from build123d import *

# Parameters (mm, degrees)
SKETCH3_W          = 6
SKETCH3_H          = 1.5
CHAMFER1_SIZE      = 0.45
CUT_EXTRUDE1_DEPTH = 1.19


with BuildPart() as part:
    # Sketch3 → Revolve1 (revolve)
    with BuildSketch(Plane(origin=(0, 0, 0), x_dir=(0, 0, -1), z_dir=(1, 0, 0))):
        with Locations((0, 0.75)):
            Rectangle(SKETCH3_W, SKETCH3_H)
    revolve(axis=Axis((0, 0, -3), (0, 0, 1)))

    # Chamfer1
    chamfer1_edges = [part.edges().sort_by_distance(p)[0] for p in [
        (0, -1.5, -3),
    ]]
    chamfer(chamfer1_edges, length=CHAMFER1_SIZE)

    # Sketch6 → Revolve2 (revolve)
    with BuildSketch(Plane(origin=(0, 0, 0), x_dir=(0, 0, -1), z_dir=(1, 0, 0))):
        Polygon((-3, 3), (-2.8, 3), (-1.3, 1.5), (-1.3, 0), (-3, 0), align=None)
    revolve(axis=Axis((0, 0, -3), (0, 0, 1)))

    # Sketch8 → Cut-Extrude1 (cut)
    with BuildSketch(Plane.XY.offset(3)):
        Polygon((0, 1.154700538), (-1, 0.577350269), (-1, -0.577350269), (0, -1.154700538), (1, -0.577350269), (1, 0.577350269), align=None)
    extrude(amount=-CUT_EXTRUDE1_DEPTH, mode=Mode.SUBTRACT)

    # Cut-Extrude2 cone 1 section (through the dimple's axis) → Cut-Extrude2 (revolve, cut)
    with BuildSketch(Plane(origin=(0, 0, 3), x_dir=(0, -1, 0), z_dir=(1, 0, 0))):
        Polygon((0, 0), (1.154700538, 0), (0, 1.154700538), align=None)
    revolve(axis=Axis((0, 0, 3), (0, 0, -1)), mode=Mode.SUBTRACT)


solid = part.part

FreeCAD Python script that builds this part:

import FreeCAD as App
import Part
import Sketcher
Q = App.Units.Quantity


def edges_at(feature, points):
    """Names of the edges that pass closest to the given points."""
    edges = feature.Shape.Edges
    near = lambda p: min(range(len(edges)), key=lambda i: edges[i].distToShape(Part.Vertex(*p))[0])
    return sorted({f"Edge{near(p) + 1}" for p in points})

doc = App.newDocument("Part")
body = doc.addObject("PartDesign::Body", "Body")

# Sketch on YZ plane
sketch1 = doc.addObject("Sketcher::SketchObject", "Sketch")
body.addObject(sketch1)
sketch1.AttachmentSupport = (doc.YZ_Plane, [""])
sketch1.MapMode = "FlatFace"
sketch1.addGeometry([
    Part.LineSegment(App.Vector(1.5, 3, 0), App.Vector(0, 3, 0)),
    Part.LineSegment(App.Vector(0, 3, 0), App.Vector(0, -3, 0)),
    Part.LineSegment(App.Vector(0, -3, 0), App.Vector(1.5, -3, 0)),
    Part.LineSegment(App.Vector(1.5, -3, 0), App.Vector(1.5, 3, 0)),
], False)
sketch1.addConstraint([
    Sketcher.Constraint("Coincident", 0, 2, 1, 1),
    Sketcher.Constraint("Coincident", 1, 2, 2, 1),
    Sketcher.Constraint("Coincident", 2, 2, 3, 1),
    Sketcher.Constraint("Coincident", 3, 2, 0, 1),
    Sketcher.Constraint("Horizontal", 0),
    Sketcher.Constraint("Vertical", 1),
    Sketcher.Constraint("Horizontal", 2),
    Sketcher.Constraint("Vertical", 3),
    Sketcher.Constraint("Symmetric", 0, 2, 1, 2, -1, 1),
    Sketcher.Constraint("DistanceY", 1, 2, 1, 1, 6.0),
    Sketcher.Constraint("DistanceX", 0, 2, 0, 1, 1.5),
])
revolution = doc.addObject("PartDesign::Revolution", "Revolution")
body.addObject(revolution)
revolution.Profile = sketch1
revolution.ReferenceAxis = (sketch1, ["V_Axis"])
revolution.Angle = 360
doc.recompute()

chamfer = doc.addObject("PartDesign::Chamfer", "Chamfer")
body.addObject(chamfer)
chamfer.Base = (revolution, edges_at(revolution, [(0, -1.5, -3)]))
chamfer.Size = 0.45

# Sketch on YZ plane
sketch2 = doc.addObject("Sketcher::SketchObject", "Sketch001")
body.addObject(sketch2)
sketch2.AttachmentSupport = (doc.YZ_Plane, [""])
sketch2.MapMode = "FlatFace"
sketch2.addGeometry([
    Part.LineSegment(App.Vector(3, 2.8, 0), App.Vector(3, 3, 0)),  # 0
    Part.LineSegment(App.Vector(3, 3, 0), App.Vector(0, 3, 0)),  # 1
    Part.LineSegment(App.Vector(0, 3, 0), App.Vector(0, 1.3, 0)),  # 2
    Part.LineSegment(App.Vector(0, 1.3, 0), App.Vector(1.5, 1.3, 0)),  # 3
    Part.LineSegment(App.Vector(1.5, 1.3, 0), App.Vector(3, 2.8, 0)),  # 4
], False)
sketch2.addConstraint([
    Sketcher.Constraint("Coincident", 0, 2, 1, 1),
    Sketcher.Constraint("Coincident", 1, 2, 2, 1),
    Sketcher.Constraint("Coincident", 2, 2, 3, 1),
    Sketcher.Constraint("Coincident", 3, 2, 4, 1),
    Sketcher.Constraint("Coincident", 4, 2, 0, 1),
    Sketcher.Constraint("Vertical", 0),
    Sketcher.Constraint("Horizontal", 1),
    Sketcher.Constraint("Vertical", 2),
    Sketcher.Constraint("Horizontal", 3),
    Sketcher.Constraint("PointOnObject", 1, 2, -2),
    Sketcher.Constraint("DistanceX", 1, 2, 1, 1, 3.0),
    Sketcher.Constraint("Angle", 4, Q("45 deg")),
    Sketcher.Constraint("DistanceX", 3, 1, 3, 2, 1.5),
    Sketcher.Constraint("DistanceY", 0, 1, 0, 2, 0.2),
    Sketcher.Constraint("DistanceY", -1, 1, 0, 2, 3.0),
])
revolution2 = doc.addObject("PartDesign::Revolution", "Revolution001")
body.addObject(revolution2)
revolution2.Profile = sketch2
revolution2.ReferenceAxis = (sketch2, ["V_Axis"])
revolution2.Angle = 360

# Sketch on XY plane
sketch3 = doc.addObject("Sketcher::SketchObject", "Sketch002")
body.addObject(sketch3)
sketch3.AttachmentSupport = (doc.XY_Plane, [""])
sketch3.MapMode = "FlatFace"
sketch3.AttachmentOffset = App.Placement(App.Vector(0, 0, 3), App.Rotation())
sketch3.addGeometry([
    Part.LineSegment(App.Vector(0, 1.2, 0), App.Vector(-1, 0.6, 0)),  # 0
    Part.LineSegment(App.Vector(-1, 0.6, 0), App.Vector(-1, -0.6, 0)),  # 1
    Part.LineSegment(App.Vector(-1, -0.6, 0), App.Vector(0, -1.2, 0)),  # 2
    Part.LineSegment(App.Vector(0, -1.2, 0), App.Vector(1, -0.6, 0)),  # 3
    Part.LineSegment(App.Vector(1, -0.6, 0), App.Vector(1, 0.6, 0)),  # 4
    Part.LineSegment(App.Vector(1, 0.6, 0), App.Vector(0, 1.2, 0)),  # 5
], False)
sketch3.addConstraint([
    Sketcher.Constraint("Coincident", 0, 2, 1, 1),
    Sketcher.Constraint("Coincident", 1, 2, 2, 1),
    Sketcher.Constraint("Coincident", 2, 2, 3, 1),
    Sketcher.Constraint("Coincident", 3, 2, 4, 1),
    Sketcher.Constraint("Coincident", 4, 2, 5, 1),
    Sketcher.Constraint("Coincident", 5, 2, 0, 1),
    Sketcher.Constraint("Vertical", 1),
    Sketcher.Constraint("Vertical", 4),
    Sketcher.Constraint("Symmetric", 0, 2, 3, 2, -1, 1),
    Sketcher.Constraint("Symmetric", 2, 2, 5, 2, -1, 1),
    Sketcher.Constraint("PointOnObject", 2, 2, -2),
    Sketcher.Constraint("Parallel", 2, 5),
    Sketcher.Constraint("Horizontal", 1, 2, 3, 2),
    Sketcher.Constraint("Angle", 0, Q("-150 deg")),
    Sketcher.Constraint("DistanceX", 0, 2, -1, 1, 1.0),
    Sketcher.Constraint("DistanceY", 1, 2, 1, 1, 1.154701),
])
pocket1 = doc.addObject("PartDesign::Pocket", "Pocket")
body.addObject(pocket1)
pocket1.Profile = sketch3
pocket1.Length = 1.19

# Sketch on YZ plane
sketch4 = doc.addObject("Sketcher::SketchObject", "Sketch003")
body.addObject(sketch4)
sketch4.AttachmentSupport = (doc.YZ_Plane, [""])
sketch4.MapMode = "FlatFace"
sketch4.addGeometry([
    Part.LineSegment(App.Vector(0, 3, 0), App.Vector(-1.2, 3, 0)),
    Part.LineSegment(App.Vector(-1.2, 3, 0), App.Vector(0, 1.8, 0)),
    Part.LineSegment(App.Vector(0, 1.8, 0), App.Vector(0, 3, 0)),
], False)
sketch4.addConstraint([
    Sketcher.Constraint("Coincident", 0, 2, 1, 1),
    Sketcher.Constraint("Coincident", 1, 2, 2, 1),
    Sketcher.Constraint("Coincident", 2, 2, 0, 1),
    Sketcher.Constraint("Horizontal", 0),
    Sketcher.Constraint("Vertical", 2),
    Sketcher.Constraint("PointOnObject", 1, 2, -2),
    Sketcher.Constraint("Equal", 0, 2),
    Sketcher.Constraint("DistanceY", -1, 1, 0, 2, 3.0),
    Sketcher.Constraint("DistanceX", 0, 2, 0, 1, 1.154701),
])
groove = doc.addObject("PartDesign::Groove", "Groove")
body.addObject(groove)
groove.Profile = sketch4
groove.ReferenceAxis = (sketch4, ["V_Axis"])
groove.Angle = 360

doc.recompute()
